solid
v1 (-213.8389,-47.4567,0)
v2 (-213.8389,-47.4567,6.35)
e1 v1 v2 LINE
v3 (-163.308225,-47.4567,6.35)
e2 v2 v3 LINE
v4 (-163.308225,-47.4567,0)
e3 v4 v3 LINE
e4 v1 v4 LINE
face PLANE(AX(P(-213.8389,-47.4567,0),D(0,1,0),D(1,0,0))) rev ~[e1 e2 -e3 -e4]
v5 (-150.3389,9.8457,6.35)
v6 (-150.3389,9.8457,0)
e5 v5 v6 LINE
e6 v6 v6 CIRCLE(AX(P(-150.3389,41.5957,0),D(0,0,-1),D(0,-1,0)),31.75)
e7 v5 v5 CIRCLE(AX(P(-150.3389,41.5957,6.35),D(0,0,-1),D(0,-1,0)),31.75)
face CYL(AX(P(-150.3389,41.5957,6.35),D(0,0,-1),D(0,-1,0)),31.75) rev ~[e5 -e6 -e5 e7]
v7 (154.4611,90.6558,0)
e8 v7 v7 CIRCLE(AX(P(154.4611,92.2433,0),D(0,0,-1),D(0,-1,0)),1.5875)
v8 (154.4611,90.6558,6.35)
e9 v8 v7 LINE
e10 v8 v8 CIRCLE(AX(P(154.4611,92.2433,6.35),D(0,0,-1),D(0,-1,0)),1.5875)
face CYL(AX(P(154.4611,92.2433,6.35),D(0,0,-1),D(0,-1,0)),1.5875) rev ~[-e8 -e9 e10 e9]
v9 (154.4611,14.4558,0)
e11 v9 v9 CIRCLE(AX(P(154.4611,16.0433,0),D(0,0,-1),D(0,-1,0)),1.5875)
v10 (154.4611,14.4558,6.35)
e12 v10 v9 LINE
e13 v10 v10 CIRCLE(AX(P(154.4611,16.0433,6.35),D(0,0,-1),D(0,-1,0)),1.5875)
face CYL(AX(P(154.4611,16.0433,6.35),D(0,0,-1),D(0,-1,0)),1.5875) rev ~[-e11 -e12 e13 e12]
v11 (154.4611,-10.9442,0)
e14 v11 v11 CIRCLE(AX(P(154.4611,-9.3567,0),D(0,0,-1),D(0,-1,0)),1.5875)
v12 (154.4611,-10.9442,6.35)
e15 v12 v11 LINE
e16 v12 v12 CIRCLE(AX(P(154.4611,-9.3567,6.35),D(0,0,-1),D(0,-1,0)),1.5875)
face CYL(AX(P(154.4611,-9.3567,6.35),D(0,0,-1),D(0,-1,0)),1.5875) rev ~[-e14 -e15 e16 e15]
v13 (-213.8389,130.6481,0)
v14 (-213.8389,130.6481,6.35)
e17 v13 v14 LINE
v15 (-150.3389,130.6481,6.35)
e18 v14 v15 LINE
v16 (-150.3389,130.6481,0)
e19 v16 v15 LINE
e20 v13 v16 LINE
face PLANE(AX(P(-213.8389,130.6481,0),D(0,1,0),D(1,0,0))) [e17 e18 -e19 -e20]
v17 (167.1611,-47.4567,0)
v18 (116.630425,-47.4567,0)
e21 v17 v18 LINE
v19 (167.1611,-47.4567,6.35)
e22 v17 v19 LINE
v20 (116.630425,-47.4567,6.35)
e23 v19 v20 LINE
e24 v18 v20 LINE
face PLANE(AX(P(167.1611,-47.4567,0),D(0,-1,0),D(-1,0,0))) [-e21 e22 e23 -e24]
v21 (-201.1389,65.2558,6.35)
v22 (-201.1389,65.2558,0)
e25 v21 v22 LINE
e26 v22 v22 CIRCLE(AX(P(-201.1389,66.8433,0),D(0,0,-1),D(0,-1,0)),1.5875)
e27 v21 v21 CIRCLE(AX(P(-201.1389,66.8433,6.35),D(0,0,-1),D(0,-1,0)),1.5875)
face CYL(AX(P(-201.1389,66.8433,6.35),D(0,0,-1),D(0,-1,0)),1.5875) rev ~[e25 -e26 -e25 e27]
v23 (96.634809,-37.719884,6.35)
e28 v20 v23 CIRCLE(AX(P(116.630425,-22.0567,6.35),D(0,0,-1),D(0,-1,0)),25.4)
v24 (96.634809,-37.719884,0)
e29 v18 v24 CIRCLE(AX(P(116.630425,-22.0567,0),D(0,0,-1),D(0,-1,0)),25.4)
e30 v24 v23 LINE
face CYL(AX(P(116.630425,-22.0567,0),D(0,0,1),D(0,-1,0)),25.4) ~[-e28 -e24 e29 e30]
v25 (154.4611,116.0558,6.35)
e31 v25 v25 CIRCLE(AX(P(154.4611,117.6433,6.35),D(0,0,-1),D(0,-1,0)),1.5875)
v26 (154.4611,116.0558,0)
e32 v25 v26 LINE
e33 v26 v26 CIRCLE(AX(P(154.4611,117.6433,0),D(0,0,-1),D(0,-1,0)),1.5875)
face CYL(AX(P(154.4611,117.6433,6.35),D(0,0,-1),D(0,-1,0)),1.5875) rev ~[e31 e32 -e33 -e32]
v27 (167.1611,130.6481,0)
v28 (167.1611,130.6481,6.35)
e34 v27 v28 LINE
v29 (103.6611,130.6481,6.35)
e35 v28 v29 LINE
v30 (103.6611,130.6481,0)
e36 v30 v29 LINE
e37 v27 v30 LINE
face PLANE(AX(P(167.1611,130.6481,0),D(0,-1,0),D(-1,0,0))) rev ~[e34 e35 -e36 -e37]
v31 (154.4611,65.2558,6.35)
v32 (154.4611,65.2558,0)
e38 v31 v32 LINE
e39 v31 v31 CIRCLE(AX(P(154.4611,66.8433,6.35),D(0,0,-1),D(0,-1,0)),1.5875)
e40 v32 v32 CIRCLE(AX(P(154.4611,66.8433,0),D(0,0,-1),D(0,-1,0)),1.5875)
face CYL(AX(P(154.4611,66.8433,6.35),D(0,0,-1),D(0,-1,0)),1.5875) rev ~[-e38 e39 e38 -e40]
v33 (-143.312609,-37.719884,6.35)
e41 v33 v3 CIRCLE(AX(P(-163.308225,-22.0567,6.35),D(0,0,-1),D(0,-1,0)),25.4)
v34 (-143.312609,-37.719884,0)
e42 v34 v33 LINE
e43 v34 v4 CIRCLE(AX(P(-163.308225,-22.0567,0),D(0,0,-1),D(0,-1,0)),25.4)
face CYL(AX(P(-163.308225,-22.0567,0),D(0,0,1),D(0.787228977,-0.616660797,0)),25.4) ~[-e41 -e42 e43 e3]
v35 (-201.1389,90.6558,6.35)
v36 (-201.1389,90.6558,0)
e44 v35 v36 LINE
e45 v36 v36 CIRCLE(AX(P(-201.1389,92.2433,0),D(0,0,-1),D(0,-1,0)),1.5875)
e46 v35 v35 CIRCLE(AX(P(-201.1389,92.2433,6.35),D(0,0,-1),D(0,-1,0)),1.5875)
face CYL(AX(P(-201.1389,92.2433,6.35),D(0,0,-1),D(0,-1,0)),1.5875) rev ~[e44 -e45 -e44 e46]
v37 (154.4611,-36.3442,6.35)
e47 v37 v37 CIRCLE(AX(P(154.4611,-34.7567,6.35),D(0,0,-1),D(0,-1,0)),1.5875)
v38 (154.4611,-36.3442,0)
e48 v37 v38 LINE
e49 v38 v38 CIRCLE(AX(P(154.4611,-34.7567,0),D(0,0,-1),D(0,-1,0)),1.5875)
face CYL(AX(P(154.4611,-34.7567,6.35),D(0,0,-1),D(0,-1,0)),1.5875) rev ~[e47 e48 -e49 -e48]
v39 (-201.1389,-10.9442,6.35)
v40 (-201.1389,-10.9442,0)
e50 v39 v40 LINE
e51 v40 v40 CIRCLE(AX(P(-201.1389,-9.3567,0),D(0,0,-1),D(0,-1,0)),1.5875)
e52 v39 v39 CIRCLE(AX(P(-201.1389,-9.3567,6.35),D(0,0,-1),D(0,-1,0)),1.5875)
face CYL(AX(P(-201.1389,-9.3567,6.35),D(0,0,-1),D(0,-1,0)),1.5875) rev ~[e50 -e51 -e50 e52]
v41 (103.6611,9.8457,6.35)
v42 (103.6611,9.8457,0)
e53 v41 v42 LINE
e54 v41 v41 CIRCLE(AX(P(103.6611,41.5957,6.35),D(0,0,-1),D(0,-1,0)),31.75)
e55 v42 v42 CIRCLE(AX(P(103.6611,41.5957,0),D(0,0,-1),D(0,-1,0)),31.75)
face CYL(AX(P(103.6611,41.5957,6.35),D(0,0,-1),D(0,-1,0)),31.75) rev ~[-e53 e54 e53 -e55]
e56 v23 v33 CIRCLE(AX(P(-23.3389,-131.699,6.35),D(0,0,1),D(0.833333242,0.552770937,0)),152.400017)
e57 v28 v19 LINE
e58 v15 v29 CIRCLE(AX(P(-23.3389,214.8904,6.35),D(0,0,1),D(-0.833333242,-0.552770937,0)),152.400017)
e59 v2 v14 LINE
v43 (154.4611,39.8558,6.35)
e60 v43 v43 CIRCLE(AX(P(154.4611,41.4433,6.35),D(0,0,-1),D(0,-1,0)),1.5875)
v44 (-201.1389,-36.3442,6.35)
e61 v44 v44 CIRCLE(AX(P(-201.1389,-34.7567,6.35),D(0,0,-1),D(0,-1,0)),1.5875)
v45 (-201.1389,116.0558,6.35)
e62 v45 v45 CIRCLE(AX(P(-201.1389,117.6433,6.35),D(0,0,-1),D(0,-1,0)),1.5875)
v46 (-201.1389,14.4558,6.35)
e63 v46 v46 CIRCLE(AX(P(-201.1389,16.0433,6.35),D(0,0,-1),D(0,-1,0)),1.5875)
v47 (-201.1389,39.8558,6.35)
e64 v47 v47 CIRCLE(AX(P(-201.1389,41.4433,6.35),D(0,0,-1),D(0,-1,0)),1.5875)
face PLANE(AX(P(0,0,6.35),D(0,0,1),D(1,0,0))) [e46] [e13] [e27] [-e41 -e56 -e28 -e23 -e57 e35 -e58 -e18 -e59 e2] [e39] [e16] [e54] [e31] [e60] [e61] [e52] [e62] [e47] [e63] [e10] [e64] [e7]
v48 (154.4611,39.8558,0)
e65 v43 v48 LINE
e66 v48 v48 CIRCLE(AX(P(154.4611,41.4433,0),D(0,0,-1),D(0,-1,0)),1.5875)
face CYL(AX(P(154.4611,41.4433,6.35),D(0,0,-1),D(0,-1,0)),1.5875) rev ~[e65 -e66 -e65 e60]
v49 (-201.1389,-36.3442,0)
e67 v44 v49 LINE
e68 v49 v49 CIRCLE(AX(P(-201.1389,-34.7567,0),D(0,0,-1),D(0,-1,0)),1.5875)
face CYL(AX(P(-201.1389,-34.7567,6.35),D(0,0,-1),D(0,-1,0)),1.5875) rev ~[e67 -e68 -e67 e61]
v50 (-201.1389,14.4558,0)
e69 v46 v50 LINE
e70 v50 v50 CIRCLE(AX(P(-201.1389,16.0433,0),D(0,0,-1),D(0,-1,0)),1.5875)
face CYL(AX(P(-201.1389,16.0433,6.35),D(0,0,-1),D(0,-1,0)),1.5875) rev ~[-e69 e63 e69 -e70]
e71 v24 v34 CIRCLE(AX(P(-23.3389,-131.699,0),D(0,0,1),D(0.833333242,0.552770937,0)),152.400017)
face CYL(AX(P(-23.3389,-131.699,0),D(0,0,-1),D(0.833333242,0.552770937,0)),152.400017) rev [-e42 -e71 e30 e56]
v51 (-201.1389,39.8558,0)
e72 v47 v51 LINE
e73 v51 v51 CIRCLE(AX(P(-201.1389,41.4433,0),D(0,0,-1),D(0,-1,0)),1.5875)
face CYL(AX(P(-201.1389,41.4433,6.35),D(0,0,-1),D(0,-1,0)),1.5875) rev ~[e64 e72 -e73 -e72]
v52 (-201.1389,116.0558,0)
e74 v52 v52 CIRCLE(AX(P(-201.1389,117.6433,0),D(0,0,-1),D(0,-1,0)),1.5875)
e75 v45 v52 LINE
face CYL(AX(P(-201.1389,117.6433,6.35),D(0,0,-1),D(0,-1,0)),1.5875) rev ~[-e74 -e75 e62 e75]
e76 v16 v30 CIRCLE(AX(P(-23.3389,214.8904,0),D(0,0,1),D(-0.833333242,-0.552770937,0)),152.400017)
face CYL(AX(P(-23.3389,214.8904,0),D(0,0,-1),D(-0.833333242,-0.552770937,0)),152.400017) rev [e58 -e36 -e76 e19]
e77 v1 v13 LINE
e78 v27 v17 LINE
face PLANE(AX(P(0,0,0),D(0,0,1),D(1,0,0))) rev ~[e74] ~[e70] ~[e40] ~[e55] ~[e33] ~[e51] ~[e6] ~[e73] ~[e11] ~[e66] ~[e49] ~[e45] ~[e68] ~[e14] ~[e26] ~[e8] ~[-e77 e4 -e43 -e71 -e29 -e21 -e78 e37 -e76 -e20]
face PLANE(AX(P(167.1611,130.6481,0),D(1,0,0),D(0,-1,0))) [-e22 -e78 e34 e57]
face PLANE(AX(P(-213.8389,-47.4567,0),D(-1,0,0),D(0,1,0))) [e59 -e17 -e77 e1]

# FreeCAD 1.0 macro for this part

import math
import FreeCAD as App
import Part
import Sketcher
Q = App.Units.Quantity


def edges_at(feature, points):
    """Names of the edges that pass closest to the given points."""
    edges = feature.Shape.Edges
    near = lambda p: min(range(len(edges)), key=lambda i: edges[i].distToShape(Part.Vertex(*p))[0])
    return sorted({f"Edge{near(p) + 1}" for p in points})

doc = App.newDocument("Part")
body = doc.addObject("PartDesign::Body", "Body")

sketch1 = body.newObject("Sketcher::SketchObject", "Sketch")
sketch1.AttachmentSupport = (doc.getObject("XY_Plane"), [""])
sketch1.MapMode = "FlatFace"
sketch1.addGeometry([
    Part.LineSegment(App.Vector(167, -47, 0), App.Vector(167, 131, 0)),
    Part.LineSegment(App.Vector(167, 131, 0), App.Vector(104, 131, 0)),
    Part.ArcOfCircle(Part.Circle(App.Vector(-23, 215, 0), App.Vector(0, 0, 1), 152), math.radians(-146), math.radians(-34)),
    Part.LineSegment(App.Vector(-150, 131, 0), App.Vector(-214, 131, 0)),
    Part.LineSegment(App.Vector(-214, 131, 0), App.Vector(-214, -47, 0)),
    Part.LineSegment(App.Vector(-214, -47, 0), App.Vector(-150, -47, 0)),
    Part.ArcOfCircle(Part.Circle(App.Vector(-23, -132, 0), App.Vector(0, 0, 1), 152), math.radians(34), math.radians(146)),
    Part.LineSegment(App.Vector(104, -47, 0), App.Vector(167, -47, 0)),
], False)
sketch1.addConstraint([
    Sketcher.Constraint("Coincident", 0, 2, 1, 1),
    Sketcher.Constraint("Coincident", 1, 2, 2, 2),
    Sketcher.Constraint("Coincident", 2, 1, 3, 1),
    Sketcher.Constraint("Coincident", 3, 2, 4, 1),
    Sketcher.Constraint("Coincident", 4, 2, 5, 1),
    Sketcher.Constraint("Coincident", 5, 2, 6, 2),
    Sketcher.Constraint("Coincident", 6, 1, 7, 1),
    Sketcher.Constraint("Coincident", 7, 2, 0, 1),
    Sketcher.Constraint("Vertical", 0),
    Sketcher.Constraint("Horizontal", 1),
    Sketcher.Constraint("Horizontal", 3),
    Sketcher.Constraint("Vertical", 4),
    Sketcher.Constraint("Horizontal", 5),
    Sketcher.Constraint("Horizontal", 7),
    Sketcher.Constraint("Equal", 2, 6),
    Sketcher.Constraint("Horizontal", 1, 2, 2, 1),
    Sketcher.Constraint("Horizontal", 5, 2, 6, 1),
    Sketcher.Constraint("Vertical", 2, 3, 6, 3),
    Sketcher.Constraint("Vertical", 2, 1, 5, 2),
    Sketcher.Constraint("Equal", 1, 3),
    Sketcher.Constraint("Radius", 2, Q("6 in")),
    Sketcher.Constraint("DistanceX", 1, 2, 1, 1, Q("2.5 in")),
    Sketcher.Constraint("DistanceX", 3, 2, 0, 2, Q("15 in")),
    Sketcher.Constraint("DistanceY", 0, 1, 0, 2, Q("7.012 in")),
    Sketcher.Constraint("DistanceY", 6, 3, -1, 1, Q("5.185 in")),
    Sketcher.Constraint("DistanceX", 2, 3, -1, 1, Q("23.339 mm")),
])
pad1 = body.newObject("PartDesign::Pad", "Pad")
pad1.Profile = sketch1
pad1.Length = Q("0.25 in")
doc.recompute()

fillet = body.newObject("PartDesign::Fillet", "Fillet")
fillet.Base = (pad1, edges_at(pad1, [(-150.339, -47.457, 3.175), (103.661, -47.457, 3.175)]))
fillet.Radius = Q("1 in")

sketch2 = body.newObject("Sketcher::SketchObject", "Sketch001")
sketch2.AttachmentSupport = (doc.getObject("XY_Plane"), [""])
sketch2.MapMode = "FlatFace"
sketch2.AttachmentOffset = App.Placement(App.Vector(0, 0, 0.25 * 25.4), App.Rotation())
sketch2.addGeometry(Part.Circle(App.Vector(-150, 42, 0), App.Vector(0, 0, 1), 32), False)
sketch2.addConstraint([
    Sketcher.Constraint("Diameter", 0, Q("2.5 in")),
    Sketcher.Constraint("DistanceX", 0, 3, -1, 1, Q("150.339 mm")),
    Sketcher.Constraint("DistanceY", -1, 1, 0, 3, Q("41.5957 mm")),
])
doc.recompute()
hole = body.newObject("PartDesign::Hole", "Hole")
hole.Profile = sketch2
hole.ThreadType = "None"
hole.Diameter = Q("2.5 in")
hole.DepthType = "ThroughAll"

sketch3 = body.newObject("Sketcher::SketchObject", "Sketch002")
sketch3.AttachmentSupport = (doc.getObject("XY_Plane"), [""])
sketch3.MapMode = "FlatFace"
sketch3.AttachmentOffset = App.Placement(App.Vector(0, 0, 0.25 * 25.4), App.Rotation())
sketch3.addGeometry(Part.Circle(App.Vector(104, 42, 0), App.Vector(0, 0, 1), 32), False)
sketch3.addConstraint([
    Sketcher.Constraint("Diameter", 0, Q("2.5 in")),
    Sketcher.Constraint("DistanceX", -1, 1, 0, 3, Q("103.661 mm")),
    Sketcher.Constraint("DistanceY", -1, 1, 0, 3, Q("41.5957 mm")),
])
doc.recompute()
hole2 = body.newObject("PartDesign::Hole", "Hole001")
hole2.Profile = sketch3
hole2.ThreadType = "None"
hole2.Diameter = Q("2.5 in")
hole2.DepthType = "ThroughAll"

sketch4 = body.newObject("Sketcher::SketchObject", "Sketch003")
sketch4.AttachmentSupport = (doc.getObject("XY_Plane"), [""])
sketch4.MapMode = "FlatFace"
sketch4.AttachmentOffset = App.Placement(App.Vector(0, 0, 0.25 * 25.4), App.Rotation())
sketch4.addGeometry(Part.Circle(App.Vector(-201.1, -34.8, 0), App.Vector(0, 0, 1), 1.6), False)
sketch4.addConstraint([
    Sketcher.Constraint("Diameter", 0, Q("0.125 in")),
    Sketcher.Constraint("DistanceX", 0, 3, -1, 1, Q("201.139 mm")),
    Sketcher.Constraint("DistanceY", 0, 3, -1, 1, Q("34.7567 mm")),
])
doc.recompute()
hole3 = body.newObject("PartDesign::Hole", "Hole002")
hole3.Profile = sketch4
hole3.ThreadType = "None"
hole3.Diameter = Q("0.125 in")
hole3.DepthType = "ThroughAll"

sketch5 = body.newObject("Sketcher::SketchObject", "Sketch004")
sketch5.AttachmentSupport = (doc.getObject("XY_Plane"), [""])
sketch5.MapMode = "FlatFace"
sketch5.AttachmentOffset = App.Placement(App.Vector(0, 0, 0.25 * 25.4), App.Rotation())
sketch5.addGeometry(Part.Circle(App.Vector(154.5, -34.8, 0), App.Vector(0, 0, 1), 1.6), False)
sketch5.addConstraint([
    Sketcher.Constraint("Diameter", 0, Q("0.125 in")),
    Sketcher.Constraint("DistanceX", -1, 1, 0, 3, Q("154.461 mm")),
    Sketcher.Constraint("DistanceY", 0, 3, -1, 1, Q("34.7567 mm")),
])
doc.recompute()
hole4 = body.newObject("PartDesign::Hole", "Hole003")
hole4.Profile = sketch5
hole4.ThreadType = "None"
hole4.Diameter = Q("0.125 in")
hole4.DepthType = "ThroughAll"
doc.recompute()

linearpattern = body.newObject("PartDesign::LinearPattern", "LinearPattern")
linearpattern.Originals = [hole3]
linearpattern.Direction = (doc.getObject("Y_Axis"), [""])
linearpattern.Mode = "offset"
linearpattern.Offset = Q("1 in")
linearpattern.Occurrences = 7
body.Tip = linearpattern
doc.recompute()

linearpattern2 = body.newObject("PartDesign::LinearPattern", "LinearPattern001")
linearpattern2.Originals = [hole4]
linearpattern2.Direction = (doc.getObject("Y_Axis"), [""])
linearpattern2.Mode = "offset"
linearpattern2.Offset = Q("1 in")
linearpattern2.Occurrences = 7
body.Tip = linearpattern2

doc.recompute()
